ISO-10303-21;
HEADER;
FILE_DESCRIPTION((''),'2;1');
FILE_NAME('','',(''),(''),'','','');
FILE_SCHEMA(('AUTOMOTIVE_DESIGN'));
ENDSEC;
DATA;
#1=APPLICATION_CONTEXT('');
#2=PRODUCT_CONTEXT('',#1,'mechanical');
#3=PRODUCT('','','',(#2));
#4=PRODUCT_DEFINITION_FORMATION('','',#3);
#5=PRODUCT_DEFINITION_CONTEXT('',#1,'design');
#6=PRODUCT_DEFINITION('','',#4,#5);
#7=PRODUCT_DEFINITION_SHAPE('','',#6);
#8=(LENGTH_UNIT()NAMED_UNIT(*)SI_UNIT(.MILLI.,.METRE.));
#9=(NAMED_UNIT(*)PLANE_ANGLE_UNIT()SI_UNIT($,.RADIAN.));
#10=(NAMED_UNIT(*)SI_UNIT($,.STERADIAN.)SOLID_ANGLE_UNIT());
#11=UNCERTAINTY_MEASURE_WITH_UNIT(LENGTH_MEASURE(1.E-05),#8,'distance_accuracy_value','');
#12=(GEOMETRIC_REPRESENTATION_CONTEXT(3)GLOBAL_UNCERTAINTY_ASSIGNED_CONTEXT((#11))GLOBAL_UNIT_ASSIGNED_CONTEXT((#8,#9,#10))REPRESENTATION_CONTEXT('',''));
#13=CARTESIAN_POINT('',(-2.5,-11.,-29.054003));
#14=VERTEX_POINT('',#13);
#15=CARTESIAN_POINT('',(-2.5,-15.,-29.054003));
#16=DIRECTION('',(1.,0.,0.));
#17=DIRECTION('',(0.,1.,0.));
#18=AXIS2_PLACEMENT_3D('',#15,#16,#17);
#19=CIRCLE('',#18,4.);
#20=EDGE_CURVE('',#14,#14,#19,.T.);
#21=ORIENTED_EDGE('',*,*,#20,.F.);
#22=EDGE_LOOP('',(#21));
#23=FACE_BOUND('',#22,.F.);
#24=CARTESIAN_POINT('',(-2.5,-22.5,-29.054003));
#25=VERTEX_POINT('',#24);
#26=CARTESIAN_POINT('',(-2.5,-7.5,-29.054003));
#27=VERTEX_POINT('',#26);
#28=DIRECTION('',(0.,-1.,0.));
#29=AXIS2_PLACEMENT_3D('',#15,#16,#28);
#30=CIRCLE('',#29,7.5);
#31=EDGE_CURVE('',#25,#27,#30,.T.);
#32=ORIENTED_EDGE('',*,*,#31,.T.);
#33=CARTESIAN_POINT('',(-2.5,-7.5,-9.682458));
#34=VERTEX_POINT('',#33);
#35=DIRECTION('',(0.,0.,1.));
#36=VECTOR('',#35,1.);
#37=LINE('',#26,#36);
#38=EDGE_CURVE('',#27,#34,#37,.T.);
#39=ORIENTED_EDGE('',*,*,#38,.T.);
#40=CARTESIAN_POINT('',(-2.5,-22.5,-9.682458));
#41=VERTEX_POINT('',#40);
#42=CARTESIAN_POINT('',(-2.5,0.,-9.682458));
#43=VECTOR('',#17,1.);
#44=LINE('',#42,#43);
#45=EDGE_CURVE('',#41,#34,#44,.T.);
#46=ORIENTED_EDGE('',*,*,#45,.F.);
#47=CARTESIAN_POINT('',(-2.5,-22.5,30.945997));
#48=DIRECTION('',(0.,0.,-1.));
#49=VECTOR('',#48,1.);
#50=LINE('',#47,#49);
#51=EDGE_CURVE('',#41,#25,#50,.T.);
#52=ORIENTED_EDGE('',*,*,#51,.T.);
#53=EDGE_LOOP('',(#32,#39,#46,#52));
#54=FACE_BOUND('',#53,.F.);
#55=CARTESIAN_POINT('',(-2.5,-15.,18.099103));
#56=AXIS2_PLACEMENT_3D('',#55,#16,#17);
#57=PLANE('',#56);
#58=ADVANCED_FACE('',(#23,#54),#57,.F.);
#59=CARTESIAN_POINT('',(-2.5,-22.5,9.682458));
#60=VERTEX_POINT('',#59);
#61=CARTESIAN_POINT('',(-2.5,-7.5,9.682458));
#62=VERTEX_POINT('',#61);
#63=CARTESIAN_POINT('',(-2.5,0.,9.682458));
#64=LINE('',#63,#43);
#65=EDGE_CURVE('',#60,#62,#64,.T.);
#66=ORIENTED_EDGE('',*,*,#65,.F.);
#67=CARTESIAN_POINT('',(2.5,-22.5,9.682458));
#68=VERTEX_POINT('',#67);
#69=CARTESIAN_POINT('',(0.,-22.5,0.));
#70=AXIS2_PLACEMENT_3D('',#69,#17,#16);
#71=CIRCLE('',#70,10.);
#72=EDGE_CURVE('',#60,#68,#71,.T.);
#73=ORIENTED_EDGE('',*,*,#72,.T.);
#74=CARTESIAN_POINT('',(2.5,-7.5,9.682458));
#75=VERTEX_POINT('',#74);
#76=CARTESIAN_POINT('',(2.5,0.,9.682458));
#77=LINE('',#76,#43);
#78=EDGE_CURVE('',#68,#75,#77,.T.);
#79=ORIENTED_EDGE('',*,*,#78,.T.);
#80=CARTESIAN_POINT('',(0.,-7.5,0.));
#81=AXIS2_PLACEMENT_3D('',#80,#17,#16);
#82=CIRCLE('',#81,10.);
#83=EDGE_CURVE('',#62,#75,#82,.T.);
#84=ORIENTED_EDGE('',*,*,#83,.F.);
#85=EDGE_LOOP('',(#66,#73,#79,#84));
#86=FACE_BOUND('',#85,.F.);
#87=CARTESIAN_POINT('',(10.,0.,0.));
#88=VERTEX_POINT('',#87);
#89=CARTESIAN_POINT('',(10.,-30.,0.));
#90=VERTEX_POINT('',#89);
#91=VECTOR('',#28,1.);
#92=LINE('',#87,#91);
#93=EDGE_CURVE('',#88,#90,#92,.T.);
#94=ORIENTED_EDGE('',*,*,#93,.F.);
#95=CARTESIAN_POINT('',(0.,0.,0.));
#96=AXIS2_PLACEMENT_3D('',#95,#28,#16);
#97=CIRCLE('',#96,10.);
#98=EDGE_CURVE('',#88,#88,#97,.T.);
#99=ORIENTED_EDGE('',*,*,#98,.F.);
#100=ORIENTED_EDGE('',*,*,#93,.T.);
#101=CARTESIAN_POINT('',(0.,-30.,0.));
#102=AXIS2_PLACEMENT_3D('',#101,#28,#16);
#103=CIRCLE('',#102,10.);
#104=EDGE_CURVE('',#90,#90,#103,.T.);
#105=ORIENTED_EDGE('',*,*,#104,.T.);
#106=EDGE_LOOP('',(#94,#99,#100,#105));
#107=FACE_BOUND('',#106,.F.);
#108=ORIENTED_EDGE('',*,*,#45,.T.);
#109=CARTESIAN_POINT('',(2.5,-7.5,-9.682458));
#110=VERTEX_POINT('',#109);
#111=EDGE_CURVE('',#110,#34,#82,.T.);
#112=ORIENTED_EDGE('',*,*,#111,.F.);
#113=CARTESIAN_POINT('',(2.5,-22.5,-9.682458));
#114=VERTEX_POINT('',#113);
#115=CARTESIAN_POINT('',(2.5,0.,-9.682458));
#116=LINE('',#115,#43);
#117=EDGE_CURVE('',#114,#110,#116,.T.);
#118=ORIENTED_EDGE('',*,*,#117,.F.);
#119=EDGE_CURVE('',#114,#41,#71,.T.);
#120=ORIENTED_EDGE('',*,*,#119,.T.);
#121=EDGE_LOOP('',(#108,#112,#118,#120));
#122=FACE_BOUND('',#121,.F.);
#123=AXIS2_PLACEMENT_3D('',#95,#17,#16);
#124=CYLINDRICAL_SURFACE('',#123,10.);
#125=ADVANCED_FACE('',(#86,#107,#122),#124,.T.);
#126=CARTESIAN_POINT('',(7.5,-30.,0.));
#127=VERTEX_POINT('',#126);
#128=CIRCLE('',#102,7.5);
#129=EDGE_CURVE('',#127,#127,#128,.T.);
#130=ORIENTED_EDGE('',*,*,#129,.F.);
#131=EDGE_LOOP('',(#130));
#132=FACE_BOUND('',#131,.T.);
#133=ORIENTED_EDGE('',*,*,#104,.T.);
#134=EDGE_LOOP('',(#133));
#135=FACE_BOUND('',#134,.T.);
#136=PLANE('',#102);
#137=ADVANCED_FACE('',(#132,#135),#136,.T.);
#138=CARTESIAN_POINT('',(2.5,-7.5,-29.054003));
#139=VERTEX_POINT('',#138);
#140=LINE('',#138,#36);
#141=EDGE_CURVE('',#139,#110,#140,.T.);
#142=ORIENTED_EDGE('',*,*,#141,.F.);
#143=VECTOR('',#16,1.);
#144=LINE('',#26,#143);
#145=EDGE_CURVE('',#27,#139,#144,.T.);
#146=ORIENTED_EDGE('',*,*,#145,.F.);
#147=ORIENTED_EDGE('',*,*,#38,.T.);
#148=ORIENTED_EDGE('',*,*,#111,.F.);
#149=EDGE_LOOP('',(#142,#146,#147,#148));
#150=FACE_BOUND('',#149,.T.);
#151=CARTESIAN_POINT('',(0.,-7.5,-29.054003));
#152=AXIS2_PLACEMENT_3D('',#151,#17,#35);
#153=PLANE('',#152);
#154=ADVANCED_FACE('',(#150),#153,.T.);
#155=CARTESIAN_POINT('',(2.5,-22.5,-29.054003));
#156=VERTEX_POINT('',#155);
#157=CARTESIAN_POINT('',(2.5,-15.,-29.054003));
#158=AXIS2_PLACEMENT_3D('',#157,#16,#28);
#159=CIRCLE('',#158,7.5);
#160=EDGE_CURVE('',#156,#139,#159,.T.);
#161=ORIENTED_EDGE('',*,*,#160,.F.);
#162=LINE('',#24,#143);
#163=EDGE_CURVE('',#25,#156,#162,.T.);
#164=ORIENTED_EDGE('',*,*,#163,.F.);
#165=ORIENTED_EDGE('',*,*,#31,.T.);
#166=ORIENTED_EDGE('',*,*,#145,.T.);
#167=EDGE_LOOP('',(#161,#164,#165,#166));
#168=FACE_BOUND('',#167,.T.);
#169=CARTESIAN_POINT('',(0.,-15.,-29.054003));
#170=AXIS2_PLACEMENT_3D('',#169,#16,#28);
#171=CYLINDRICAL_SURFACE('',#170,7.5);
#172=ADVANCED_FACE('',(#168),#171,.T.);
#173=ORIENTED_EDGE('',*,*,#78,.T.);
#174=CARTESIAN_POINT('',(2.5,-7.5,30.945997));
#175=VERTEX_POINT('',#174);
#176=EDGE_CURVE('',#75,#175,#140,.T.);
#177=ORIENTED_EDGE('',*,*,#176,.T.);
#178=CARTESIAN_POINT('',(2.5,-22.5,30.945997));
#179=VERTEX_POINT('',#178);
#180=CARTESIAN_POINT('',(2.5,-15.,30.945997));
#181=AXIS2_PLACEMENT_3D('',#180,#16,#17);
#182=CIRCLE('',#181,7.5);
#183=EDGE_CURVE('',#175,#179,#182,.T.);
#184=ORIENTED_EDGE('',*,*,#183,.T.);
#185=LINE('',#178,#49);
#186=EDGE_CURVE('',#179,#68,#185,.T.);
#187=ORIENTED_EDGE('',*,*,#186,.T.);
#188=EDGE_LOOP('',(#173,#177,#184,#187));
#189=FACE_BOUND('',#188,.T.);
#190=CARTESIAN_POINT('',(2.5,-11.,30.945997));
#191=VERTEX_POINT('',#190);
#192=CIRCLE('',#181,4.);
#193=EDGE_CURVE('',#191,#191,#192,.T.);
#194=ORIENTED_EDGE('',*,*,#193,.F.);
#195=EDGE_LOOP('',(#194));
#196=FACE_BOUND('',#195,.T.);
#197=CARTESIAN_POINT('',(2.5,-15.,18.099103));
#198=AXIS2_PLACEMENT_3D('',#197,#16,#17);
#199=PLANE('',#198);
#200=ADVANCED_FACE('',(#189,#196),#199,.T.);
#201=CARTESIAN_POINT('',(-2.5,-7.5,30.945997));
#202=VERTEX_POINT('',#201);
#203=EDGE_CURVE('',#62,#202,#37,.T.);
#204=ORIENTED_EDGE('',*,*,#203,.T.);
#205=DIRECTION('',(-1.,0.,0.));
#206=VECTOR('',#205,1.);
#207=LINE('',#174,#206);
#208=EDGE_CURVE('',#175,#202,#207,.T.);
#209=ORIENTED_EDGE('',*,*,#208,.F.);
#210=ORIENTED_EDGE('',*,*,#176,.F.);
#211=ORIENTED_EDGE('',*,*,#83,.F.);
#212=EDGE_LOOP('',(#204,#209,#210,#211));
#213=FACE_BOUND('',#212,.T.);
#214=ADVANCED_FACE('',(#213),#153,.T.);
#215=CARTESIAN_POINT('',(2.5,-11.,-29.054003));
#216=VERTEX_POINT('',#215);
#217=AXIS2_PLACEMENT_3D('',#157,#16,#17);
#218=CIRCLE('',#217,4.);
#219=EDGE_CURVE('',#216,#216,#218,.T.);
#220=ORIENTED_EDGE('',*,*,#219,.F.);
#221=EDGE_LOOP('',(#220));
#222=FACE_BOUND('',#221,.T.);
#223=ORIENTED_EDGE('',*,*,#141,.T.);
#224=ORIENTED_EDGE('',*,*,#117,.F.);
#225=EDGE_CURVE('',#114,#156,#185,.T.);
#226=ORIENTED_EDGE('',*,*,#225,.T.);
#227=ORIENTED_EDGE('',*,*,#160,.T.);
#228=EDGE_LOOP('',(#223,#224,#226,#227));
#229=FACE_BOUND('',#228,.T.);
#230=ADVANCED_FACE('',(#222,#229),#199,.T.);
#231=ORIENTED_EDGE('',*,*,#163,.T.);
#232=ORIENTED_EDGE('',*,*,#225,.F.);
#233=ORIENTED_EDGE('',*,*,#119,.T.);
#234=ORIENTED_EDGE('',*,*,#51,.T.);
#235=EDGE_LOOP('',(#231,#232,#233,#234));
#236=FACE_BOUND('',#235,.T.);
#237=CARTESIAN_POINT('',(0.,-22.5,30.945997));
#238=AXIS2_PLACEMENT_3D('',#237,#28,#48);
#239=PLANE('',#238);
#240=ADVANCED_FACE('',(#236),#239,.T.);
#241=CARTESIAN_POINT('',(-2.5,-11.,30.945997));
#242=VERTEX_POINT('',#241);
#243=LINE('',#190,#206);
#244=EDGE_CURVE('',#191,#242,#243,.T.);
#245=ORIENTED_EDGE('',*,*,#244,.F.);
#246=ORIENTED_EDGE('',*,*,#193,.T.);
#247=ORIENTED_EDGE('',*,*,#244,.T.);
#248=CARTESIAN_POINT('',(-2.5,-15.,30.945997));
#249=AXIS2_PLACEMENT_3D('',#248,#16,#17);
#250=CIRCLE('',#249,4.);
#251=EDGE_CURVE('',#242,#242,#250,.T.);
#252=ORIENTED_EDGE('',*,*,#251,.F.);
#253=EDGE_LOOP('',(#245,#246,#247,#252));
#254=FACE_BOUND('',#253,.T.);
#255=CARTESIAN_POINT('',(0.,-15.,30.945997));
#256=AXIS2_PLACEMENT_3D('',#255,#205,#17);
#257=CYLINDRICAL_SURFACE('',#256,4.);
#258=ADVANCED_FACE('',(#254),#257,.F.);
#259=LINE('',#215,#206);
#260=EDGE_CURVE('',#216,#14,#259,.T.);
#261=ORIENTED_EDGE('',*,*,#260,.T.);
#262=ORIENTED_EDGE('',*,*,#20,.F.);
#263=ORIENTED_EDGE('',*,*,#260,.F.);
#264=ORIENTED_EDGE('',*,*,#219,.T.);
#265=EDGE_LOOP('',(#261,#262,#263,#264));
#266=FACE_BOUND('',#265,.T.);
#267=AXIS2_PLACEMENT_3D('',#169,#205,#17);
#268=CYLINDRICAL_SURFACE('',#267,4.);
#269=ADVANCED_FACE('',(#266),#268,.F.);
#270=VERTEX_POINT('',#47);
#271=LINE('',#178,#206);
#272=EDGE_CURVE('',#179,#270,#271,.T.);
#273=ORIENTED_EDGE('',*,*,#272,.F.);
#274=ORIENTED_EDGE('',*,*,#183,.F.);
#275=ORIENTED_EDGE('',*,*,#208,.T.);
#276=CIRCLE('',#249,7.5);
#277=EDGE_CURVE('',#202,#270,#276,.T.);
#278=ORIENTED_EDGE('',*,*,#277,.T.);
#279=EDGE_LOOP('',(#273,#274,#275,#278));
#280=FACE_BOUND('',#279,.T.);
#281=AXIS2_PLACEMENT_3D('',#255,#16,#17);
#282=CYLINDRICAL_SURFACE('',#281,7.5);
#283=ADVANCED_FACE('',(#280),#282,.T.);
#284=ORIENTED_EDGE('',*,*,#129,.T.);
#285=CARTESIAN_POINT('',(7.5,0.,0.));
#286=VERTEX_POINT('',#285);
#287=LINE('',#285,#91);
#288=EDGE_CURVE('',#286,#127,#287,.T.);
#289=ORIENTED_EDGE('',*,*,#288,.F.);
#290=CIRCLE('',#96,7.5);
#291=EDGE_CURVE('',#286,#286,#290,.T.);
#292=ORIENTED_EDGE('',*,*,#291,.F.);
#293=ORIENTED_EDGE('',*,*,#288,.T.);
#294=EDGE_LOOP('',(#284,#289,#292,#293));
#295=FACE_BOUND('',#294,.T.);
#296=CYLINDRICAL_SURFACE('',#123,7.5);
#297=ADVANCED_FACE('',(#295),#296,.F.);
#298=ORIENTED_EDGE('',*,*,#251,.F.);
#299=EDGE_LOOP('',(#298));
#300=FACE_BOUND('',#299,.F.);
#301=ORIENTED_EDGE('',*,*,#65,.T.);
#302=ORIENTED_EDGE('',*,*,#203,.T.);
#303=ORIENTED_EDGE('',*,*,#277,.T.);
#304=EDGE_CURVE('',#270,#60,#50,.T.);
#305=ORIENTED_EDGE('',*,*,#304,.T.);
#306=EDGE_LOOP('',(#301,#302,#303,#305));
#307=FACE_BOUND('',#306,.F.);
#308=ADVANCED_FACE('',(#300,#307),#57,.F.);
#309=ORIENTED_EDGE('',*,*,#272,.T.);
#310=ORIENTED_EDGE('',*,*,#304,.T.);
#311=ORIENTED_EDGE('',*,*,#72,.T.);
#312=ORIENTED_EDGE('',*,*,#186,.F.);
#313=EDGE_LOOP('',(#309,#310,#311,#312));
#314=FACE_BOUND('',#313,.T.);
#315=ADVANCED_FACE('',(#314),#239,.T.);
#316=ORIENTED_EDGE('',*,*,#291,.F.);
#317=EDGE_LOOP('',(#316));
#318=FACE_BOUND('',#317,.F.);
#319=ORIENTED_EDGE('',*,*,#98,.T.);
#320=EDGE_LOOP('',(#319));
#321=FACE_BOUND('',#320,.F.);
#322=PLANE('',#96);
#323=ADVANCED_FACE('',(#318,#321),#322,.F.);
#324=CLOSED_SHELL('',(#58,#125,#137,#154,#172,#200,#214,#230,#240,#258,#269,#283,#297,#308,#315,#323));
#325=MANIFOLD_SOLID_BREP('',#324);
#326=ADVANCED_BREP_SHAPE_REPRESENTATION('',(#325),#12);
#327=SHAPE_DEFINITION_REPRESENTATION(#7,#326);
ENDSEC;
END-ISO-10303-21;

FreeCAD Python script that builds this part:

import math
import FreeCAD as App
import Part
import Sketcher

doc = App.newDocument("Part")
params = doc.addObject("Spreadsheet::Sheet", "Params")
for row, (alias, value) in enumerate([
    ("sketch1_diameter", "20 mm"),
    ("sketch1_diameter2", "15 mm"),
    ("pad1_length", "30 mm"),
    ("sketch2_diameter", "8 mm"),
    ("sketch2_radius", "7.5 mm"),
    ("sketch2_height", "60 mm"),
    ("pad2_length", "5 mm"),
    ("sketch3_diameter", "15 mm"),
], start=1):
    params.set(f"A{row}", alias)
    params.set(f"B{row}", "=" + value)
    params.setAlias(f"B{row}", alias)

body = doc.addObject("PartDesign::Body", "Body")

# Sketch on XZ plane
sketch1 = doc.addObject("Sketcher::SketchObject", "Sketch")
body.addObject(sketch1)
sketch1.AttachmentSupport = (doc.XZ_Plane, [""])
sketch1.MapMode = "FlatFace"
sketch1.addGeometry([
    Part.Circle(App.Vector(0, 0, 0), App.Vector(0, 0, 1), 10),
    Part.Circle(App.Vector(0, 0, 0), App.Vector(0, 0, 1), 8),
], False)
sketch1.addConstraint([
    Sketcher.Constraint("Coincident", 0, 3, -1, 1),
    Sketcher.Constraint("Coincident", 1, 3, -1, 1),
    Sketcher.Constraint("Diameter", 0, 20.0),
    Sketcher.Constraint("Diameter", 1, 15.0),
])
sketch1.setExpression("Constraints[2]", "Params.sketch1_diameter")
sketch1.setExpression("Constraints[3]", "Params.sketch1_diameter2")
pad1 = doc.addObject("PartDesign::Pad", "Pad")
body.addObject(pad1)
pad1.Profile = sketch1
pad1.setExpression("Length", "Params.pad1_length")

# Sketch on YZ plane
sketch2 = doc.addObject("Sketcher::SketchObject", "Sketch001")
body.addObject(sketch2)
sketch2.AttachmentSupport = (doc.YZ_Plane, [""])
sketch2.MapMode = "FlatFace"
sketch2.addGeometry([
    Part.LineSegment(App.Vector(-22.5, 30.9, 0), App.Vector(-22.5, -29.1, 0)),  # 0
    Part.ArcOfCircle(Part.Circle(App.Vector(-15, -29.1, 0), App.Vector(0, 0, 1), 7.5), math.radians(180), math.radians(360)),  # 1
    Part.LineSegment(App.Vector(-7.5, -29.1, 0), App.Vector(-7.5, 30.9, 0)),  # 2
    Part.ArcOfCircle(Part.Circle(App.Vector(-15, 30.9, 0), App.Vector(0, 0, 1), 7.5), math.radians(0), math.radians(180)),  # 3
    Part.Circle(App.Vector(-15, -29.1, 0), App.Vector(0, 0, 1), 4),  # 4
    Part.Circle(App.Vector(-15, 30.9, 0), App.Vector(0, 0, 1), 4),  # 5
], False)
sketch2.addConstraint([
    Sketcher.Constraint("Tangent", 0, 2, 1, 1),
    Sketcher.Constraint("Tangent", 1, 2, 2, 1),
    Sketcher.Constraint("Tangent", 2, 2, 3, 1),
    Sketcher.Constraint("Tangent", 3, 2, 0, 1),
    Sketcher.Constraint("Vertical", 0),
    Sketcher.Constraint("Vertical", 2),
    Sketcher.Constraint("Coincident", 4, 3, 1, 3),
    Sketcher.Constraint("Coincident", 5, 3, 3, 3),
    Sketcher.Constraint("Equal", 4, 5),
    Sketcher.Constraint("Diameter", 4, 8.0),
    Sketcher.Constraint("Radius", 1, 7.5),
    Sketcher.Constraint("DistanceY", 0, 2, 0, 1, 60.0),
    Sketcher.Constraint("DistanceX", 1, 3, -1, 1, 15.0),
    Sketcher.Constraint("DistanceY", 1, 3, -1, 1, 29.054003),
])
sketch2.setExpression("Constraints[9]", "Params.sketch2_diameter")
sketch2.setExpression("Constraints[10]", "Params.sketch2_radius")
sketch2.setExpression("Constraints[11]", "Params.sketch2_height")
pad2 = doc.addObject("PartDesign::Pad", "Pad001")
body.addObject(pad2)
pad2.Profile = sketch2
pad2.setExpression("Length", "Params.pad2_length")
pad2.Midplane = True

# Sketch on XZ plane
sketch3 = doc.addObject("Sketcher::SketchObject", "Sketch002")
body.addObject(sketch3)
sketch3.AttachmentSupport = (doc.XZ_Plane, [""])
sketch3.MapMode = "FlatFace"
sketch3.AttachmentOffset = App.Placement(App.Vector(0, 0, 30), App.Rotation())
sketch3.addGeometry(Part.Circle(App.Vector(0, 0, 0), App.Vector(0, 0, 1), 8), False)
sketch3.addConstraint([
    Sketcher.Constraint("Coincident", 0, 3, -1, 1),
    Sketcher.Constraint("Diameter", 0, 15.0),
])
sketch3.setExpression("Constraints[1]", "Params.sketch3_diameter")
pocket1 = doc.addObject("PartDesign::Pocket", "Pocket")
body.addObject(pocket1)
pocket1.Profile = sketch3
pocket1.Type = "ThroughAll"

doc.recompute()
